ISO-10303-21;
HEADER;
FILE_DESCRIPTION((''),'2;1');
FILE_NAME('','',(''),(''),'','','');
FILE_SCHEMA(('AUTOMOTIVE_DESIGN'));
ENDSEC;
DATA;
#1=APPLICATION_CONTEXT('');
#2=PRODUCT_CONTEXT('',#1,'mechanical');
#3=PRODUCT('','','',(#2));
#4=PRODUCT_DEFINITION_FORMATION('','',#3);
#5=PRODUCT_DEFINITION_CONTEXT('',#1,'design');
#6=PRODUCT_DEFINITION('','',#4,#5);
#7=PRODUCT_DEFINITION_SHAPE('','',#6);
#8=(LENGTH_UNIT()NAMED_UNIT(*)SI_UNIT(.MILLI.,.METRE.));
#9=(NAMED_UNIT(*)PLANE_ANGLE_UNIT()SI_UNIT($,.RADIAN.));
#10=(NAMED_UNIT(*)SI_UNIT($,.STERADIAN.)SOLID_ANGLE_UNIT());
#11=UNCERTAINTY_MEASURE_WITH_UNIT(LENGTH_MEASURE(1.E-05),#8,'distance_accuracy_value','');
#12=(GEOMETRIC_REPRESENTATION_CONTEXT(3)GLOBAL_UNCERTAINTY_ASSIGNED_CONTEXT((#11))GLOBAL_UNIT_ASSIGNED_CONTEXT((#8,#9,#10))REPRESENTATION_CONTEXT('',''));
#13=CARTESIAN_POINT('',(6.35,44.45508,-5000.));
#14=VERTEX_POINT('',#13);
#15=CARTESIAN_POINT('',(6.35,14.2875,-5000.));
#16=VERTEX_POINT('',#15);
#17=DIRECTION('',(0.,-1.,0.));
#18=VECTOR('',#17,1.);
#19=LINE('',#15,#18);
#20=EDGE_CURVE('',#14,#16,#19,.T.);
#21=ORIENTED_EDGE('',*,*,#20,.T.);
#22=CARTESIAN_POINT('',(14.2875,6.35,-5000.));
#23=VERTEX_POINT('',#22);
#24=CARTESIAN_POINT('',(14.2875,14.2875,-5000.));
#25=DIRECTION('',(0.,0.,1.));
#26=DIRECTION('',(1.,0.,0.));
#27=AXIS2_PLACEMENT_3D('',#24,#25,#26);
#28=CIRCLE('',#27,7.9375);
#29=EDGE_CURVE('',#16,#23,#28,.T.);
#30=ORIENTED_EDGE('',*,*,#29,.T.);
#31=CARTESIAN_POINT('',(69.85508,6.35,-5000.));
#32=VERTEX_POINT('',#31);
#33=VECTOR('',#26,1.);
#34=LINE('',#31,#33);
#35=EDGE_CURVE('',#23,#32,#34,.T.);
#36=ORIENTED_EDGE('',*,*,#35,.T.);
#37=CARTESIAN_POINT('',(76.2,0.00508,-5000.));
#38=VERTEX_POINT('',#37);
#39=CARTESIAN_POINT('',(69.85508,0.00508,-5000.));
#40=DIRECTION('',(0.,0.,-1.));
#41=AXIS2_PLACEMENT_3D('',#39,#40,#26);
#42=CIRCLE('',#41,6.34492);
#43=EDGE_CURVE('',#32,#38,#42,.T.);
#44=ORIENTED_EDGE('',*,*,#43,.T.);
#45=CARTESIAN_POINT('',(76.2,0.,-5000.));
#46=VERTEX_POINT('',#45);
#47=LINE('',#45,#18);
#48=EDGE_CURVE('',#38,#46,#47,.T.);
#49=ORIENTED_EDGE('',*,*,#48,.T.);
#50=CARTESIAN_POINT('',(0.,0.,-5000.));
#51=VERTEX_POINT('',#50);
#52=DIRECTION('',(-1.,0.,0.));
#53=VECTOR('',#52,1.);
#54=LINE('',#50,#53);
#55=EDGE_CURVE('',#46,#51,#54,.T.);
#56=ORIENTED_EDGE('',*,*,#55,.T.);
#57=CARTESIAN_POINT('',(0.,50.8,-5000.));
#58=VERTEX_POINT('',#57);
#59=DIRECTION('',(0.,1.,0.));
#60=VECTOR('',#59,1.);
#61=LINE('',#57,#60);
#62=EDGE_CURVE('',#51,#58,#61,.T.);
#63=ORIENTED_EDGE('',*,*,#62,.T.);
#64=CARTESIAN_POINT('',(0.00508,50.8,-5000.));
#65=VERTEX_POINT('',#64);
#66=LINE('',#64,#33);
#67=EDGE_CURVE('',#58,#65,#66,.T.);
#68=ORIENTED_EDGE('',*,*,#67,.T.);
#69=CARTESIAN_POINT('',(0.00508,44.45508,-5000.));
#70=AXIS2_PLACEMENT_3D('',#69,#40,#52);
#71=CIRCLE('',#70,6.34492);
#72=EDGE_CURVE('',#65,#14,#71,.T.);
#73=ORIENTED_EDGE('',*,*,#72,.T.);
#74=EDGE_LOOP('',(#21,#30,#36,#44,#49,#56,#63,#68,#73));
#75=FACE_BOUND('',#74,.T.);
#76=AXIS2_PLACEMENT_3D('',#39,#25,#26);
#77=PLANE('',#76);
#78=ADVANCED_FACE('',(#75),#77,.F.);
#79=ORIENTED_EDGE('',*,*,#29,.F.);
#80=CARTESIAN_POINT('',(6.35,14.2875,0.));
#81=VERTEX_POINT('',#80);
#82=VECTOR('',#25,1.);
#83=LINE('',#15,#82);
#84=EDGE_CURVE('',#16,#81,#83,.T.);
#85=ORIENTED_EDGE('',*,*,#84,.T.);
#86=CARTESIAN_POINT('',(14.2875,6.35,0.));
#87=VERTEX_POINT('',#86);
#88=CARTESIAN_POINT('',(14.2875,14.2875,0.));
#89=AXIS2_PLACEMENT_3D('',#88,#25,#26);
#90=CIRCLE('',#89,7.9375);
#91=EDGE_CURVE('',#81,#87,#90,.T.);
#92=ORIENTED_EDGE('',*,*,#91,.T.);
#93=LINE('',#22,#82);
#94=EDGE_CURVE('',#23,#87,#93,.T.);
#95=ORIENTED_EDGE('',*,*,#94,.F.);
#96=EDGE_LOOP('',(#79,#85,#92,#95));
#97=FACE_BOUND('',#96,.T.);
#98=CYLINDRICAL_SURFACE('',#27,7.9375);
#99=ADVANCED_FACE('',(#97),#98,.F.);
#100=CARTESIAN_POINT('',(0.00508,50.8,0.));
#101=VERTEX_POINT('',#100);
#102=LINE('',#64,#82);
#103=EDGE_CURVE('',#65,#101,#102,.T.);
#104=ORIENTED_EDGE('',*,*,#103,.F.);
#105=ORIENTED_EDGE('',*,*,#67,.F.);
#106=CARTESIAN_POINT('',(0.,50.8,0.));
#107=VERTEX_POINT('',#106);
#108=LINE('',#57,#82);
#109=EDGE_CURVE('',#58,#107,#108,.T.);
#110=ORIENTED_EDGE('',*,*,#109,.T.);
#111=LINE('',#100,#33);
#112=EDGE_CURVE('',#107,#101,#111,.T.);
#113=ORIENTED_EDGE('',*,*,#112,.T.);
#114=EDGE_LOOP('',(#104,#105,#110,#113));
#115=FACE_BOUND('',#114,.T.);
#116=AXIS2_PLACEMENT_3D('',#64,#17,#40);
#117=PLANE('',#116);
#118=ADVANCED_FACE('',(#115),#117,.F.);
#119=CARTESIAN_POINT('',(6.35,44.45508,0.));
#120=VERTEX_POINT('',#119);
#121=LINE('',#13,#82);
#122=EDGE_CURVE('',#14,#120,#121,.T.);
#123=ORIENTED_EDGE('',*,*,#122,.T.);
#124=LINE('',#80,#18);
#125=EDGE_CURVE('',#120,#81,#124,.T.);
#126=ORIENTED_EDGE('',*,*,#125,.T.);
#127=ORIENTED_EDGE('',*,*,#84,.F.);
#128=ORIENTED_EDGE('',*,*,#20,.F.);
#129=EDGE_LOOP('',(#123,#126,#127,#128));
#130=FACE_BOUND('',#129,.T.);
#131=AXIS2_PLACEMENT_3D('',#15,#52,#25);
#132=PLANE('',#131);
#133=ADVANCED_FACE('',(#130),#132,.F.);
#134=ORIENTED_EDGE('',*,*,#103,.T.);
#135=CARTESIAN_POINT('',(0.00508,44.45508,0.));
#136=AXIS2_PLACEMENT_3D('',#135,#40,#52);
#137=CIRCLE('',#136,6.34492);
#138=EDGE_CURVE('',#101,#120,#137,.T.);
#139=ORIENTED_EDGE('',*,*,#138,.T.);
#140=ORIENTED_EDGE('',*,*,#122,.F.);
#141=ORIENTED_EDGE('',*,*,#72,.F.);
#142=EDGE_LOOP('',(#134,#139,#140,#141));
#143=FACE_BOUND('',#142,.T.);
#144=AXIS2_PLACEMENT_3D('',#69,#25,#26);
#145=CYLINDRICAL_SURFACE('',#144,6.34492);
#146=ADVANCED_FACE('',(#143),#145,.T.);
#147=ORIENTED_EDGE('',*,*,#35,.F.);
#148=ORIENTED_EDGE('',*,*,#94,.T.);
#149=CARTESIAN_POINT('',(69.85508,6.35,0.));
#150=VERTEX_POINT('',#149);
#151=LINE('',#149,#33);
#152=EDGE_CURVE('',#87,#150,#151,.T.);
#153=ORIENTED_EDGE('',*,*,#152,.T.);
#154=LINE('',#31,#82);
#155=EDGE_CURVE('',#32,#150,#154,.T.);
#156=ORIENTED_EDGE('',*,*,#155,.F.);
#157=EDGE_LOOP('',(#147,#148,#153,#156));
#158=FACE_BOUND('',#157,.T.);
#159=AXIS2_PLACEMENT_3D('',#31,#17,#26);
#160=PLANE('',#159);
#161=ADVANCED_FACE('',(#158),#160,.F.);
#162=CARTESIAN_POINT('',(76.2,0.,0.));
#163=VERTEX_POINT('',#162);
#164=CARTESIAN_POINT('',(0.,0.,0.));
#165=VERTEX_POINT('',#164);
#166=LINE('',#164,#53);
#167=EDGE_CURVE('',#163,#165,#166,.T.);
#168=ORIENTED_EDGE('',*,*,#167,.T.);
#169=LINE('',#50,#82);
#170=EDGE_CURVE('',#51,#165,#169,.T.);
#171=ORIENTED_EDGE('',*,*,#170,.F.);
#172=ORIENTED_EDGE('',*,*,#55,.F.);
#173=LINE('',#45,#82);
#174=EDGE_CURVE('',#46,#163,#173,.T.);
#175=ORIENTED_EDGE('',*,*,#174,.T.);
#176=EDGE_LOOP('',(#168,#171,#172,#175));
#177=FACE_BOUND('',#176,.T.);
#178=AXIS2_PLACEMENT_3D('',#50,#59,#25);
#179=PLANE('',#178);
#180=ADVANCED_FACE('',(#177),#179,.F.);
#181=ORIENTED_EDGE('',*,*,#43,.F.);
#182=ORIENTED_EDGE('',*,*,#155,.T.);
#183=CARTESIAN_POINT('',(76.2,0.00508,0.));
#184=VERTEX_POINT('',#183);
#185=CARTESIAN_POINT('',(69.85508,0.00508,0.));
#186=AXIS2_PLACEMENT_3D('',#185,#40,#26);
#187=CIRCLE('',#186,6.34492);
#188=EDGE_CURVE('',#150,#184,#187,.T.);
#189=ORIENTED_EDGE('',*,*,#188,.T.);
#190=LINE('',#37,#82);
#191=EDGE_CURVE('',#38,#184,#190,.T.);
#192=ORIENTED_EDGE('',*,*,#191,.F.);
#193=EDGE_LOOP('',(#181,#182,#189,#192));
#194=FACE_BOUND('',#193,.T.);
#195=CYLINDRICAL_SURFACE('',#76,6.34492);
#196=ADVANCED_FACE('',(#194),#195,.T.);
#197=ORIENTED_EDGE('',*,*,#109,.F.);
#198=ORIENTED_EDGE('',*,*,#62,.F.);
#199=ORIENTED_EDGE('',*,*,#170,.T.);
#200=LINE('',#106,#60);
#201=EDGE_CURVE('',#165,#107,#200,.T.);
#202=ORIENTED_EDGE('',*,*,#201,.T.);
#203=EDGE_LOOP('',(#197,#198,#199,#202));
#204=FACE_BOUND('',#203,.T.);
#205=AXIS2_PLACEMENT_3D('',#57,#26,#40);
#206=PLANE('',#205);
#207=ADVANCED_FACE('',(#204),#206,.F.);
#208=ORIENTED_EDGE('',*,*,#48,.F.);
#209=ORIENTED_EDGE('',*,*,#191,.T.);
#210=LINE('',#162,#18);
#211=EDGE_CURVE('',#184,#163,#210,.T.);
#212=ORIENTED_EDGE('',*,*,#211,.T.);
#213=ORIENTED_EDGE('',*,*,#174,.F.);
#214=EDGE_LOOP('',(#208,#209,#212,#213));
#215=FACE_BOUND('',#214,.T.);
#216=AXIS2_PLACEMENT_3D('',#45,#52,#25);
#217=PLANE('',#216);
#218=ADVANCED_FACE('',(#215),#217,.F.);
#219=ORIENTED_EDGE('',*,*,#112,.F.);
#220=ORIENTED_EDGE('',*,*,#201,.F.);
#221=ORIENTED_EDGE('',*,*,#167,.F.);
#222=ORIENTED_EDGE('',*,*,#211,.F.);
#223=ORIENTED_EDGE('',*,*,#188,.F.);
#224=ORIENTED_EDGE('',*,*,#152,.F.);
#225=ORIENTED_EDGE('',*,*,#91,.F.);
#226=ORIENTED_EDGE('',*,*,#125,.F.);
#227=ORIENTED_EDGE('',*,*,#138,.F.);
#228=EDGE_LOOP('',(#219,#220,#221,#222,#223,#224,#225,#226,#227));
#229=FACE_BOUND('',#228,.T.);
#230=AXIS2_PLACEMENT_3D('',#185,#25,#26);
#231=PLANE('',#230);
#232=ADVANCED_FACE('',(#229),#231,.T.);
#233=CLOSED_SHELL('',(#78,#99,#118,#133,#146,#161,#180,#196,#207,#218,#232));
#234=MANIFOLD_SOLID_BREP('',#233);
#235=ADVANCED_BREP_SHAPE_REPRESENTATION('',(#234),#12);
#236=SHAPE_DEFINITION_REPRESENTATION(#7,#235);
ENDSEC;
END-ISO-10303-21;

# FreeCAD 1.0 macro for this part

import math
import FreeCAD as App
import Part
import Sketcher

V = App.Vector
Q = App.Units.Quantity

doc = App.newDocument("Part")
params = doc.addObject("Spreadsheet::Sheet", "Params")
for row, (alias, value) in enumerate([
    ("sketch1_width", "3 in"),
    ("sketch1_height", "2 in"),
    ("sketch1_radius", "0.3125 in"),
    ("pad1_length", "5000 mm"),
], start=1):
    params.set(f"A{row}", alias)
    params.set(f"B{row}", "=" + value)
    params.setAlias(f"B{row}", alias)

body = doc.addObject("PartDesign::Body", "Body")

# Sketch on XY plane
sketch1 = doc.addObject("Sketcher::SketchObject", "Sketch")
body.addObject(sketch1)
sketch1.AttachmentSupport = (doc.XY_Plane, [""])
sketch1.MapMode = "FlatFace"
sketch1.addGeometry(Part.LineSegment(V(76.2, 0, 0), V(0, 0, 0)), False)
sketch1.addGeometry(Part.LineSegment(V(0, 0, 0), V(0, 50.8, 0)), False)
sketch1.addGeometry(Part.LineSegment(V(0, 50.8, 0), V(0.005, 50.8, 0)), False)
sketch1.addGeometry(Part.ArcOfCircle(Part.Circle(V(0.005, 44.455, 0), V(0, 0, 1), 6.345), math.radians(0), math.radians(90)), False)
sketch1.addGeometry(Part.LineSegment(V(6.35, 44.455, 0), V(6.35, 14.287, 0)), False)
sketch1.addGeometry(Part.ArcOfCircle(Part.Circle(V(14.287, 14.287, 0), V(0, 0, 1), 7.937), math.radians(180), math.radians(270)), False)
sketch1.addGeometry(Part.LineSegment(V(14.287, 6.35, 0), V(69.855, 6.35, 0)), False)
sketch1.addGeometry(Part.ArcOfCircle(Part.Circle(V(69.855, 0.005, 0), V(0, 0, 1), 6.345), math.radians(0), math.radians(90)), False)
sketch1.addGeometry(Part.LineSegment(V(76.2, 0.005, 0), V(76.2, 0, 0)), False)
sketch1.addConstraint(Sketcher.Constraint("Coincident", 0, 2, 1, 1))
sketch1.addConstraint(Sketcher.Constraint("Coincident", 1, 2, 2, 1))
sketch1.addConstraint(Sketcher.Constraint("Tangent", 2, 2, 3, 2))
sketch1.addConstraint(Sketcher.Constraint("Tangent", 3, 1, 4, 1))
sketch1.addConstraint(Sketcher.Constraint("Tangent", 4, 2, 5, 1))
sketch1.addConstraint(Sketcher.Constraint("Tangent", 5, 2, 6, 1))
sketch1.addConstraint(Sketcher.Constraint("Tangent", 6, 2, 7, 2))
sketch1.addConstraint(Sketcher.Constraint("Tangent", 7, 1, 8, 1))
sketch1.addConstraint(Sketcher.Constraint("Coincident", 8, 2, 0, 1))
sketch1.addConstraint(Sketcher.Constraint("Horizontal", 0))
sketch1.addConstraint(Sketcher.Constraint("Vertical", 1))
sketch1.addConstraint(Sketcher.Constraint("Vertical", 4))
sketch1.addConstraint(Sketcher.Constraint("Horizontal", 6))
sketch1.addConstraint(Sketcher.Constraint("Coincident", 0, 2, -1, 1))
sketch1.addConstraint(Sketcher.Constraint("Equal", 3, 7))
sketch1.addConstraint(Sketcher.Constraint("Vertical", 3, 3, 2, 2))
sketch1.addConstraint(Sketcher.Constraint("Equal", 2, 8))
sketch1.addConstraint(Sketcher.Constraint("DistanceX", 0, 2, 0, 1, Q("3 in")))
sketch1.addConstraint(Sketcher.Constraint("DistanceY", 1, 1, 1, 2, Q("2 in")))
sketch1.addConstraint(Sketcher.Constraint("Radius", 5, Q("0.3125 in")))
sketch1.addConstraint(Sketcher.Constraint("Radius", 3, Q("0.2498 in")))
sketch1.addConstraint(Sketcher.Constraint("DistanceX", -1, 1, 3, 1, Q("0.25 in")))
sketch1.addConstraint(Sketcher.Constraint("DistanceY", -1, 1, 5, 2, Q("0.25 in")))
sketch1.setExpression("Constraints[17]", "Params.sketch1_width")
sketch1.setExpression("Constraints[18]", "Params.sketch1_height")
sketch1.setExpression("Constraints[19]", "Params.sketch1_radius")
pad1 = doc.addObject("PartDesign::Pad", "Pad")
body.addObject(pad1)
pad1.Profile = sketch1
pad1.setExpression("Length", "Params.pad1_length")
pad1.Reversed = True

doc.recompute()
